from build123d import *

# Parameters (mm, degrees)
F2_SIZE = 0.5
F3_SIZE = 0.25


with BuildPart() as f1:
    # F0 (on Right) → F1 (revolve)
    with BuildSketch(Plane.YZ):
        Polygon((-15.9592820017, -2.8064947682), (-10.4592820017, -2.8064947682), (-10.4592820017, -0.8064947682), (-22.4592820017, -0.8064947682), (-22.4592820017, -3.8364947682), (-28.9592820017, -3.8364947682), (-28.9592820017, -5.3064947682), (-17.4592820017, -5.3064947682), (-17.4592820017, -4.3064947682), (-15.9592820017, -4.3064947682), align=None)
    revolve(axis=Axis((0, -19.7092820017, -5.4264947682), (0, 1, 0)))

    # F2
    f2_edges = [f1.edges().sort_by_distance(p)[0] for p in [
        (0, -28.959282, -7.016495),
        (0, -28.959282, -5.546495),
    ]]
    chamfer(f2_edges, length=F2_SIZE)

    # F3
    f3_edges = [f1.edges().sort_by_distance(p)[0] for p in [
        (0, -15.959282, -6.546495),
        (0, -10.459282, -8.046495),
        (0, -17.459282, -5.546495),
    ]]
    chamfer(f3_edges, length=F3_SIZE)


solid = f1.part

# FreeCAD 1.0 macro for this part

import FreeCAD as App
import Part
import Sketcher

V = App.Vector


def edges_at(feature, points):
    """Names of the edges that pass closest to the given points."""
    edges = feature.Shape.Edges
    near = lambda p: min(range(len(edges)), key=lambda i: edges[i].distToShape(Part.Vertex(*p))[0])
    return sorted({f"Edge{near(p) + 1}" for p in points})


def add_polygon(sketch, points):
    """Adds a closed chain of lines whose ends are joined by coincident constraints."""
    first, n = sketch.GeometryCount, len(points)
    for a, b in zip(points, points[1:] + points[:1]):
        sketch.addGeometry(Part.LineSegment(App.Vector(*a, 0), App.Vector(*b, 0)), False)
    for i in range(n):
        sketch.addConstraint(Sketcher.Constraint("Coincident", first + i, 2, first + (i + 1) % n, 1))

doc = App.newDocument("Part")
params = doc.addObject("Spreadsheet::Sheet", "Params")
for row, (alias, value) in enumerate([
    ("sketch1_width", "12 mm"),
    ("sketch1_height", "2 mm"),
    ("sketch1_height2", "1 mm"),
    ("sketch1_width2", "5.5 mm"),
    ("sketch1_width3", "6.5 mm"),
    ("revolution_angle", "360 deg"),
    ("chamfer_size", "0.5 mm"),
    ("chamfer2_size", "0.25 mm"),
], start=1):
    params.set(f"A{row}", alias)
    params.set(f"B{row}", "=" + value)
    params.setAlias(f"B{row}", alias)

body = doc.addObject("PartDesign::Body", "Body")

# Sketch on YZ plane
sketch1 = doc.addObject("Sketcher::SketchObject", "Sketch")
body.addObject(sketch1)
sketch1.AttachmentSupport = (doc.YZ_Plane, [""])
sketch1.MapMode = "FlatFace"
add_polygon(sketch1, [(-16, -2.8), (-10.5, -2.8), (-10.5, -0.8), (-22.5, -0.8), (-22.5, -3.8), (-29, -3.8), (-29, -5.3), (-17.5, -5.3), (-17.5, -4.3), (-16, -4.3)])  # lines 0-9
sketch1.addGeometry(Part.LineSegment(V(-29, -5.4, 0), V(-10.5, -5.4, 0)), True)  # axis
sketch1.addConstraint([
    Sketcher.Constraint("Horizontal", 0),
    Sketcher.Constraint("Vertical", 1),
    Sketcher.Constraint("Horizontal", 2),
    Sketcher.Constraint("Vertical", 3),
    Sketcher.Constraint("Horizontal", 4),
    Sketcher.Constraint("Vertical", 5),
    Sketcher.Constraint("Horizontal", 6),
    Sketcher.Constraint("Vertical", 7),
    Sketcher.Constraint("Horizontal", 8),
    Sketcher.Constraint("Vertical", 9),
    Sketcher.Constraint("Horizontal", 10),
    Sketcher.Constraint("Vertical", 5, 2, 10, 1),
    Sketcher.Constraint("Vertical", 1, 2, 10, 2),
    Sketcher.Constraint("Equal", 8, 9),
    Sketcher.Constraint("DistanceX", 2, 2, 2, 1, 12.0),
    Sketcher.Constraint("DistanceY", 1, 1, 1, 2, 2.0),
    Sketcher.Constraint("DistanceY", 7, 1, 7, 2, 1.0),
    Sketcher.Constraint("DistanceX", 0, 1, 0, 2, 5.5),
    Sketcher.Constraint("DistanceX", 4, 2, 4, 1, 6.5),
    Sketcher.Constraint("DistanceX", 6, 1, 6, 2, 11.5),
    Sketcher.Constraint("DistanceY", 3, 2, 3, 1, 3.03),
    Sketcher.Constraint("DistanceY", 10, 1, 5, 2, 0.12),
    Sketcher.Constraint("DistanceX", 0, 2, -1, 1, 10.459282),
    Sketcher.Constraint("DistanceY", 0, 2, -1, 1, 2.806495),
])
sketch1.setExpression("Constraints[24]", "Params.sketch1_width")
sketch1.setExpression("Constraints[25]", "Params.sketch1_height")
sketch1.setExpression("Constraints[26]", "Params.sketch1_height2")
sketch1.setExpression("Constraints[27]", "Params.sketch1_width2")
sketch1.setExpression("Constraints[28]", "Params.sketch1_width3")
revolution = doc.addObject("PartDesign::Revolution", "Revolution")
body.addObject(revolution)
revolution.Profile = sketch1
revolution.ReferenceAxis = (sketch1, ["Axis0"])
revolution.setExpression("Angle", "Params.revolution_angle")
doc.recompute()

chamfer = doc.addObject("PartDesign::Chamfer", "Chamfer")
body.addObject(chamfer)
chamfer.Base = (revolution, edges_at(revolution, [(0, -28.959, -7.016), (0, -28.959, -5.546)]))
chamfer.setExpression("Size", "Params.chamfer_size")
doc.recompute()

chamfer2 = doc.addObject("PartDesign::Chamfer", "Chamfer001")
body.addObject(chamfer2)
chamfer2.Base = (chamfer, edges_at(chamfer, [(0, -15.959, -6.546), (0, -10.459, -8.046), (0, -17.459, -5.546)]))
chamfer2.setExpression("Size", "Params.chamfer2_size")

doc.recompute()
